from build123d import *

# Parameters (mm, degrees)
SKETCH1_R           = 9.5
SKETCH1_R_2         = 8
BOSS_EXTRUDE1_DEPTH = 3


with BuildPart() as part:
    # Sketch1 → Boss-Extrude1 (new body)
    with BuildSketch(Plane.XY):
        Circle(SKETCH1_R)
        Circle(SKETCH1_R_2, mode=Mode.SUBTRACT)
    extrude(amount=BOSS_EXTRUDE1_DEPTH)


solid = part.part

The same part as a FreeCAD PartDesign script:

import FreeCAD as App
import Part
import Sketcher

doc = App.newDocument("Part")
body = doc.addObject("PartDesign::Body", "Body")

# Sketch on XY plane
sketch1 = doc.addObject("Sketcher::SketchObject", "Sketch")
body.addObject(sketch1)
sketch1.AttachmentSupport = (doc.XY_Plane, [""])
sketch1.MapMode = "FlatFace"
sketch1.addGeometry([
    Part.Circle(App.Vector(0, 0, 0), App.Vector(0, 0, 1), 10),
    Part.Circle(App.Vector(0, 0, 0), App.Vector(0, 0, 1), 8),
], False)
sketch1.addConstraint([
    Sketcher.Constraint("Coincident", 0, 3, -1, 1),
    Sketcher.Constraint("Coincident", 1, 3, -1, 1),
    Sketcher.Constraint("Diameter", 0, 19.0),
    Sketcher.Constraint("Diameter", 1, 16.0),
])
pad1 = doc.addObject("PartDesign::Pad", "Pad")
body.addObject(pad1)
pad1.Profile = sketch1
pad1.Length = 3

doc.recompute()
